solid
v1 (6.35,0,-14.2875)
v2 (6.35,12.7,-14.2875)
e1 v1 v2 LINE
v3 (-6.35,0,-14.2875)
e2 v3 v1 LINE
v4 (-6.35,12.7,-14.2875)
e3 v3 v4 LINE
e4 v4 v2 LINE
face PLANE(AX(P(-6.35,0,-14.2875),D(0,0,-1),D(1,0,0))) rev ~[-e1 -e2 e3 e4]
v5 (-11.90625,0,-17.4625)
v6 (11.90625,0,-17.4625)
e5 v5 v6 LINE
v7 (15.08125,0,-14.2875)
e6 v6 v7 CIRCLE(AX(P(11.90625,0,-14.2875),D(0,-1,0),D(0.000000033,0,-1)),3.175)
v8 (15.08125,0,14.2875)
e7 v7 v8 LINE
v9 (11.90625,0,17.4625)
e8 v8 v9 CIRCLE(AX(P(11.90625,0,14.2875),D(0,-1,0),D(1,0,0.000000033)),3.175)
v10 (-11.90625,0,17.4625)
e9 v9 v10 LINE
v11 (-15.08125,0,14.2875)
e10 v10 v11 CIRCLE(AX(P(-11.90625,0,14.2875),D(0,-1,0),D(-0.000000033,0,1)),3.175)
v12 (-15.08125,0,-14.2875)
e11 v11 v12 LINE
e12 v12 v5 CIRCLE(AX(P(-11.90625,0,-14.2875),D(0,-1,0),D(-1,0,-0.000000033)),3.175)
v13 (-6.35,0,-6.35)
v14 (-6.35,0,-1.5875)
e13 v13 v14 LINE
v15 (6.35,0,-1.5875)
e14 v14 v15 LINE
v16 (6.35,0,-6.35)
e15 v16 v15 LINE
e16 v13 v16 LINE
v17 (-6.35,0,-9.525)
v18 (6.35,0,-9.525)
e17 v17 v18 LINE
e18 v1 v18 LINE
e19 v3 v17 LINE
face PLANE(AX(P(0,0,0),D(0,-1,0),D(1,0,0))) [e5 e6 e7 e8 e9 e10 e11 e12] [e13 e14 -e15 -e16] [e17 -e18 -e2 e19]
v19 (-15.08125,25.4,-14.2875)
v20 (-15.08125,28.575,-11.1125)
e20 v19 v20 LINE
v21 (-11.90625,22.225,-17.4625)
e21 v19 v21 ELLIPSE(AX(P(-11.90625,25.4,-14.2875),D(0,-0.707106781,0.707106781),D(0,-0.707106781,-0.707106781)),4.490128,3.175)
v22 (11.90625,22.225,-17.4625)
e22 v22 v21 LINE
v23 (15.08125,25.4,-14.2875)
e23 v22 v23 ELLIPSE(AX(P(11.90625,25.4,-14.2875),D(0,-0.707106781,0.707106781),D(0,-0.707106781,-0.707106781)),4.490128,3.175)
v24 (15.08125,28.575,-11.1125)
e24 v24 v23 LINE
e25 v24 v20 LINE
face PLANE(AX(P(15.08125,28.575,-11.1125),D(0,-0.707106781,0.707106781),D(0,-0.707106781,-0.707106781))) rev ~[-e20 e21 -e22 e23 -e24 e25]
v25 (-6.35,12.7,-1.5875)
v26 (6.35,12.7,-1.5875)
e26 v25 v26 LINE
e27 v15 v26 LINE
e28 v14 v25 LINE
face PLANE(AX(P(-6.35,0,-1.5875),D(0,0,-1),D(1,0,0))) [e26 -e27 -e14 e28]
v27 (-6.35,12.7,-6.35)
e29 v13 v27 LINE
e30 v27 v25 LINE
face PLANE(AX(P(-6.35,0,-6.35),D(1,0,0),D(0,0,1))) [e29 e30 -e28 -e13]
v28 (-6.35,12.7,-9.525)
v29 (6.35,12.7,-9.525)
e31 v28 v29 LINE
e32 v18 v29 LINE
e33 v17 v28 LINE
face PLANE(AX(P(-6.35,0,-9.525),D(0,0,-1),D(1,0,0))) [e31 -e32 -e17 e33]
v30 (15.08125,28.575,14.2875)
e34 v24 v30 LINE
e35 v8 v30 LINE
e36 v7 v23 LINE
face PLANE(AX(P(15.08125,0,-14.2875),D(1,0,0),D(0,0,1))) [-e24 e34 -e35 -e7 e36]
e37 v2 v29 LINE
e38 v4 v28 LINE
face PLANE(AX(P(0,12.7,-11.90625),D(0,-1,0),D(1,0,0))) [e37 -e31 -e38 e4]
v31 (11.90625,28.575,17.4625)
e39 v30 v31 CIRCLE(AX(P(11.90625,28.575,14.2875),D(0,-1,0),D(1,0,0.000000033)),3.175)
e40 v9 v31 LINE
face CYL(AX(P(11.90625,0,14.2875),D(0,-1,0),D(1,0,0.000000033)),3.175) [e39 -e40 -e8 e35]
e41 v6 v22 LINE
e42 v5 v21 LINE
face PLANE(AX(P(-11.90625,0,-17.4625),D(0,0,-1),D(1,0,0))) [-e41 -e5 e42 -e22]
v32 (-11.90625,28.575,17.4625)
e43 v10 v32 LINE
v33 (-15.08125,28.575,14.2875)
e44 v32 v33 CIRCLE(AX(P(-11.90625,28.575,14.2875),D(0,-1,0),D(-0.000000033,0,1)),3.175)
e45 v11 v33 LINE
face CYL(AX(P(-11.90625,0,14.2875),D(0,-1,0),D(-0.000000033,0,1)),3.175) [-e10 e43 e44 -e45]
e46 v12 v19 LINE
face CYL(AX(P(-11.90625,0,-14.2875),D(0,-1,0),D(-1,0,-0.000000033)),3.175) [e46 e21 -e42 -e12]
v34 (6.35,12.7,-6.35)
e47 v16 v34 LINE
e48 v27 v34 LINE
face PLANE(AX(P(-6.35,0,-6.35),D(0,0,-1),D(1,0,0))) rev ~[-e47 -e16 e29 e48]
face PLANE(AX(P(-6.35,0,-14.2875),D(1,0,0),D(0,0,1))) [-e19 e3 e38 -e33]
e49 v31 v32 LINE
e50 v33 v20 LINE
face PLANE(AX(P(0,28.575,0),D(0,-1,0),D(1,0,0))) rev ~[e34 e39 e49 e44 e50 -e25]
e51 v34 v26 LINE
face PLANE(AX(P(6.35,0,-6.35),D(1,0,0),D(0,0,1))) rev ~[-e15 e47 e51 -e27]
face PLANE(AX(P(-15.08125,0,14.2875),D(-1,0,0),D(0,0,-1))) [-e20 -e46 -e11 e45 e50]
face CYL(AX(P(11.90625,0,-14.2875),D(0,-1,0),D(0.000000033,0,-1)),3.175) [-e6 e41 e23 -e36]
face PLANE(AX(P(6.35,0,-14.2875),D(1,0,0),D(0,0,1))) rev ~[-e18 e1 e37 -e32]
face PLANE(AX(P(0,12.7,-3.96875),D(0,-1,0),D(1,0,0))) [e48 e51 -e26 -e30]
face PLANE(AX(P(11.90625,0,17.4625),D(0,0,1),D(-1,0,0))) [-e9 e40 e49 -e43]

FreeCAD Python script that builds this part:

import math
import FreeCAD as App
import Part
import Sketcher

V = App.Vector
Q = App.Units.Quantity

doc = App.newDocument("Part")
body = doc.addObject("PartDesign::Body", "Body")

# Sketch on XZ plane
sketch1 = body.newObject("Sketcher::SketchObject", "Sketch")
sketch1.AttachmentSupport = (doc.getObject("XZ_Plane"), [""])
sketch1.MapMode = "FlatFace"
sketch1.addGeometry(Part.ArcOfCircle(Part.Circle(V(11.90625, 14.2875, 0), V(0, 0, 1), 3.175), math.radians(0.000002), math.radians(89.999998)), False)
sketch1.addGeometry(Part.LineSegment(V(11.90625, 17.4625, 0), V(-11.90625, 17.4625, 0)), False)
sketch1.addGeometry(Part.ArcOfCircle(Part.Circle(V(-11.90625, 14.2875, 0), V(0, 0, 1), 3.175), math.radians(90.000002), math.radians(179.999998)), False)
sketch1.addGeometry(Part.LineSegment(V(-15.08125, 14.2875, 0), V(-15.08125, -14.2875, 0)), False)
sketch1.addGeometry(Part.ArcOfCircle(Part.Circle(V(-11.90625, -14.2875, 0), V(0, 0, 1), 3.175), math.radians(-179.999998), math.radians(-90.000002)), False)
sketch1.addGeometry(Part.LineSegment(V(-11.90625, -17.4625, 0), V(11.90625, -17.4625, 0)), False)
sketch1.addGeometry(Part.ArcOfCircle(Part.Circle(V(11.90625, -14.2875, 0), V(0, 0, 1), 3.175), math.radians(-89.999998), math.radians(-0.000002)), False)
sketch1.addGeometry(Part.LineSegment(V(15.08125, -14.2875, 0), V(15.08125, 14.2875, 0)), False)
sketch1.addConstraint(Sketcher.Constraint("Tangent", 0, 2, 1, 1))
sketch1.addConstraint(Sketcher.Constraint("Tangent", 1, 2, 2, 1))
sketch1.addConstraint(Sketcher.Constraint("Tangent", 2, 2, 3, 1))
sketch1.addConstraint(Sketcher.Constraint("Tangent", 3, 2, 4, 1))
sketch1.addConstraint(Sketcher.Constraint("Tangent", 4, 2, 5, 1))
sketch1.addConstraint(Sketcher.Constraint("Tangent", 5, 2, 6, 1))
sketch1.addConstraint(Sketcher.Constraint("Tangent", 6, 2, 7, 1))
sketch1.addConstraint(Sketcher.Constraint("Tangent", 7, 2, 0, 1))
sketch1.addConstraint(Sketcher.Constraint("Horizontal", 1))
sketch1.addConstraint(Sketcher.Constraint("Vertical", 3))
sketch1.addConstraint(Sketcher.Constraint("Horizontal", 5))
sketch1.addConstraint(Sketcher.Constraint("Vertical", 7))
sketch1.addConstraint(Sketcher.Constraint("Equal", 0, 2))
sketch1.addConstraint(Sketcher.Constraint("Equal", 2, 4))
sketch1.addConstraint(Sketcher.Constraint("Equal", 4, 6))
sketch1.addConstraint(Sketcher.Constraint("Symmetric", 0, 3, 4, 3, -1, 1))
sketch1.addConstraint(Sketcher.Constraint("Radius", 0, Q("0.125 in")))
sketch1.addConstraint(Sketcher.Constraint("DistanceX", 1, 2, 1, 1, Q("0.9375 in")))
sketch1.addConstraint(Sketcher.Constraint("DistanceY", 3, 2, 3, 1, Q("1.125 in")))
pad1 = body.newObject("PartDesign::Pad", "Pad")
pad1.Profile = sketch1
pad1.Length = Q("1.125 in")
pad1.Reversed = True

# Sketch on YZ plane
sketch2 = body.newObject("Sketcher::SketchObject", "Sketch001")
sketch2.AttachmentSupport = (doc.getObject("YZ_Plane"), [""])
sketch2.MapMode = "FlatFace"
sketch2.AttachmentOffset = App.Placement(V(0, 0, 0.59375 * 25.4), App.Rotation())
sketch2.addGeometry(Part.LineSegment(V(28.575, -17.4625, 0), V(28.575, -11.1125, 0)), False)
sketch2.addGeometry(Part.LineSegment(V(28.575, -11.1125, 0), V(22.225, -17.4625, 0)), False)
sketch2.addGeometry(Part.LineSegment(V(22.225, -17.4625, 0), V(28.575, -17.4625, 0)), False)
sketch2.addConstraint(Sketcher.Constraint("Coincident", 0, 2, 1, 1))
sketch2.addConstraint(Sketcher.Constraint("Coincident", 1, 2, 2, 1))
sketch2.addConstraint(Sketcher.Constraint("Coincident", 2, 2, 0, 1))
sketch2.addConstraint(Sketcher.Constraint("Vertical", 0))
sketch2.addConstraint(Sketcher.Constraint("Horizontal", 2))
sketch2.addConstraint(Sketcher.Constraint("Equal", 2, 0))
sketch2.addConstraint(Sketcher.Constraint("DistanceX", 2, 1, 2, 2, Q("0.25 in")))
sketch2.addConstraint(Sketcher.Constraint("DistanceX", -1, 1, 0, 2, Q("1.125 in")))
sketch2.addConstraint(Sketcher.Constraint("DistanceY", 0, 2, -1, 1, Q("0.4375 in")))
pocket1 = body.newObject("PartDesign::Pocket", "Pocket")
pocket1.Profile = sketch2
pocket1.Type = "ThroughAll"

# Sketch on XZ plane
sketch3 = body.newObject("Sketcher::SketchObject", "Sketch002")
sketch3.AttachmentSupport = (doc.getObject("XZ_Plane"), [""])
sketch3.MapMode = "FlatFace"
sketch3.addGeometry(Part.LineSegment(V(-6.35, -9.525, 0), V(-6.35, -14.2875, 0)), False)
sketch3.addGeometry(Part.LineSegment(V(-6.35, -14.2875, 0), V(6.35, -14.2875, 0)), False)
sketch3.addGeometry(Part.LineSegment(V(6.35, -14.2875, 0), V(6.35, -9.525, 0)), False)
sketch3.addGeometry(Part.LineSegment(V(6.35, -9.525, 0), V(-6.35, -9.525, 0)), False)
sketch3.addGeometry(Part.LineSegment(V(-6.35, -1.5875, 0), V(-6.35, -6.35, 0)), False)
sketch3.addGeometry(Part.LineSegment(V(-6.35, -6.35, 0), V(6.35, -6.35, 0)), False)
sketch3.addGeometry(Part.LineSegment(V(6.35, -6.35, 0), V(6.35, -1.5875, 0)), False)
sketch3.addGeometry(Part.LineSegment(V(6.35, -1.5875, 0), V(-6.35, -1.5875, 0)), False)
sketch3.addConstraint(Sketcher.Constraint("Coincident", 0, 2, 1, 1))
sketch3.addConstraint(Sketcher.Constraint("Coincident", 1, 2, 2, 1))
sketch3.addConstraint(Sketcher.Constraint("Coincident", 2, 2, 3, 1))
sketch3.addConstraint(Sketcher.Constraint("Coincident", 3, 2, 0, 1))
sketch3.addConstraint(Sketcher.Constraint("Coincident", 4, 2, 5, 1))
sketch3.addConstraint(Sketcher.Constraint("Coincident", 5, 2, 6, 1))
sketch3.addConstraint(Sketcher.Constraint("Coincident", 6, 2, 7, 1))
sketch3.addConstraint(Sketcher.Constraint("Coincident", 7, 2, 4, 1))
sketch3.addConstraint(Sketcher.Constraint("Vertical", 0))
sketch3.addConstraint(Sketcher.Constraint("Horizontal", 1))
sketch3.addConstraint(Sketcher.Constraint("Vertical", 2))
sketch3.addConstraint(Sketcher.Constraint("Horizontal", 3))
sketch3.addConstraint(Sketcher.Constraint("Vertical", 4))
sketch3.addConstraint(Sketcher.Constraint("Horizontal", 5))
sketch3.addConstraint(Sketcher.Constraint("Vertical", 6))
sketch3.addConstraint(Sketcher.Constraint("Horizontal", 7))
sketch3.addConstraint(Sketcher.Constraint("Vertical", 3, 2, 4, 2))
sketch3.addConstraint(Sketcher.Constraint("Vertical", 2, 2, 5, 2))
sketch3.addConstraint(Sketcher.Constraint("Equal", 2, 4))
sketch3.addConstraint(Sketcher.Constraint("DistanceX", 1, 1, 1, 2, Q("0.5 in")))
sketch3.addConstraint(Sketcher.Constraint("DistanceY", 1, 2, 6, 2, Q("0.5 in")))
sketch3.addConstraint(Sketcher.Constraint("DistanceY", 0, 2, 0, 1, Q("0.1875 in")))
sketch3.addConstraint(Sketcher.Constraint("DistanceX", 0, 2, -1, 1, Q("0.25 in")))
sketch3.addConstraint(Sketcher.Constraint("DistanceY", 4, 2, -1, 1, Q("0.25 in")))
pocket2 = body.newObject("PartDesign::Pocket", "Pocket001")
pocket2.Profile = sketch3
pocket2.Length = Q("0.5 in")

doc.recompute()
